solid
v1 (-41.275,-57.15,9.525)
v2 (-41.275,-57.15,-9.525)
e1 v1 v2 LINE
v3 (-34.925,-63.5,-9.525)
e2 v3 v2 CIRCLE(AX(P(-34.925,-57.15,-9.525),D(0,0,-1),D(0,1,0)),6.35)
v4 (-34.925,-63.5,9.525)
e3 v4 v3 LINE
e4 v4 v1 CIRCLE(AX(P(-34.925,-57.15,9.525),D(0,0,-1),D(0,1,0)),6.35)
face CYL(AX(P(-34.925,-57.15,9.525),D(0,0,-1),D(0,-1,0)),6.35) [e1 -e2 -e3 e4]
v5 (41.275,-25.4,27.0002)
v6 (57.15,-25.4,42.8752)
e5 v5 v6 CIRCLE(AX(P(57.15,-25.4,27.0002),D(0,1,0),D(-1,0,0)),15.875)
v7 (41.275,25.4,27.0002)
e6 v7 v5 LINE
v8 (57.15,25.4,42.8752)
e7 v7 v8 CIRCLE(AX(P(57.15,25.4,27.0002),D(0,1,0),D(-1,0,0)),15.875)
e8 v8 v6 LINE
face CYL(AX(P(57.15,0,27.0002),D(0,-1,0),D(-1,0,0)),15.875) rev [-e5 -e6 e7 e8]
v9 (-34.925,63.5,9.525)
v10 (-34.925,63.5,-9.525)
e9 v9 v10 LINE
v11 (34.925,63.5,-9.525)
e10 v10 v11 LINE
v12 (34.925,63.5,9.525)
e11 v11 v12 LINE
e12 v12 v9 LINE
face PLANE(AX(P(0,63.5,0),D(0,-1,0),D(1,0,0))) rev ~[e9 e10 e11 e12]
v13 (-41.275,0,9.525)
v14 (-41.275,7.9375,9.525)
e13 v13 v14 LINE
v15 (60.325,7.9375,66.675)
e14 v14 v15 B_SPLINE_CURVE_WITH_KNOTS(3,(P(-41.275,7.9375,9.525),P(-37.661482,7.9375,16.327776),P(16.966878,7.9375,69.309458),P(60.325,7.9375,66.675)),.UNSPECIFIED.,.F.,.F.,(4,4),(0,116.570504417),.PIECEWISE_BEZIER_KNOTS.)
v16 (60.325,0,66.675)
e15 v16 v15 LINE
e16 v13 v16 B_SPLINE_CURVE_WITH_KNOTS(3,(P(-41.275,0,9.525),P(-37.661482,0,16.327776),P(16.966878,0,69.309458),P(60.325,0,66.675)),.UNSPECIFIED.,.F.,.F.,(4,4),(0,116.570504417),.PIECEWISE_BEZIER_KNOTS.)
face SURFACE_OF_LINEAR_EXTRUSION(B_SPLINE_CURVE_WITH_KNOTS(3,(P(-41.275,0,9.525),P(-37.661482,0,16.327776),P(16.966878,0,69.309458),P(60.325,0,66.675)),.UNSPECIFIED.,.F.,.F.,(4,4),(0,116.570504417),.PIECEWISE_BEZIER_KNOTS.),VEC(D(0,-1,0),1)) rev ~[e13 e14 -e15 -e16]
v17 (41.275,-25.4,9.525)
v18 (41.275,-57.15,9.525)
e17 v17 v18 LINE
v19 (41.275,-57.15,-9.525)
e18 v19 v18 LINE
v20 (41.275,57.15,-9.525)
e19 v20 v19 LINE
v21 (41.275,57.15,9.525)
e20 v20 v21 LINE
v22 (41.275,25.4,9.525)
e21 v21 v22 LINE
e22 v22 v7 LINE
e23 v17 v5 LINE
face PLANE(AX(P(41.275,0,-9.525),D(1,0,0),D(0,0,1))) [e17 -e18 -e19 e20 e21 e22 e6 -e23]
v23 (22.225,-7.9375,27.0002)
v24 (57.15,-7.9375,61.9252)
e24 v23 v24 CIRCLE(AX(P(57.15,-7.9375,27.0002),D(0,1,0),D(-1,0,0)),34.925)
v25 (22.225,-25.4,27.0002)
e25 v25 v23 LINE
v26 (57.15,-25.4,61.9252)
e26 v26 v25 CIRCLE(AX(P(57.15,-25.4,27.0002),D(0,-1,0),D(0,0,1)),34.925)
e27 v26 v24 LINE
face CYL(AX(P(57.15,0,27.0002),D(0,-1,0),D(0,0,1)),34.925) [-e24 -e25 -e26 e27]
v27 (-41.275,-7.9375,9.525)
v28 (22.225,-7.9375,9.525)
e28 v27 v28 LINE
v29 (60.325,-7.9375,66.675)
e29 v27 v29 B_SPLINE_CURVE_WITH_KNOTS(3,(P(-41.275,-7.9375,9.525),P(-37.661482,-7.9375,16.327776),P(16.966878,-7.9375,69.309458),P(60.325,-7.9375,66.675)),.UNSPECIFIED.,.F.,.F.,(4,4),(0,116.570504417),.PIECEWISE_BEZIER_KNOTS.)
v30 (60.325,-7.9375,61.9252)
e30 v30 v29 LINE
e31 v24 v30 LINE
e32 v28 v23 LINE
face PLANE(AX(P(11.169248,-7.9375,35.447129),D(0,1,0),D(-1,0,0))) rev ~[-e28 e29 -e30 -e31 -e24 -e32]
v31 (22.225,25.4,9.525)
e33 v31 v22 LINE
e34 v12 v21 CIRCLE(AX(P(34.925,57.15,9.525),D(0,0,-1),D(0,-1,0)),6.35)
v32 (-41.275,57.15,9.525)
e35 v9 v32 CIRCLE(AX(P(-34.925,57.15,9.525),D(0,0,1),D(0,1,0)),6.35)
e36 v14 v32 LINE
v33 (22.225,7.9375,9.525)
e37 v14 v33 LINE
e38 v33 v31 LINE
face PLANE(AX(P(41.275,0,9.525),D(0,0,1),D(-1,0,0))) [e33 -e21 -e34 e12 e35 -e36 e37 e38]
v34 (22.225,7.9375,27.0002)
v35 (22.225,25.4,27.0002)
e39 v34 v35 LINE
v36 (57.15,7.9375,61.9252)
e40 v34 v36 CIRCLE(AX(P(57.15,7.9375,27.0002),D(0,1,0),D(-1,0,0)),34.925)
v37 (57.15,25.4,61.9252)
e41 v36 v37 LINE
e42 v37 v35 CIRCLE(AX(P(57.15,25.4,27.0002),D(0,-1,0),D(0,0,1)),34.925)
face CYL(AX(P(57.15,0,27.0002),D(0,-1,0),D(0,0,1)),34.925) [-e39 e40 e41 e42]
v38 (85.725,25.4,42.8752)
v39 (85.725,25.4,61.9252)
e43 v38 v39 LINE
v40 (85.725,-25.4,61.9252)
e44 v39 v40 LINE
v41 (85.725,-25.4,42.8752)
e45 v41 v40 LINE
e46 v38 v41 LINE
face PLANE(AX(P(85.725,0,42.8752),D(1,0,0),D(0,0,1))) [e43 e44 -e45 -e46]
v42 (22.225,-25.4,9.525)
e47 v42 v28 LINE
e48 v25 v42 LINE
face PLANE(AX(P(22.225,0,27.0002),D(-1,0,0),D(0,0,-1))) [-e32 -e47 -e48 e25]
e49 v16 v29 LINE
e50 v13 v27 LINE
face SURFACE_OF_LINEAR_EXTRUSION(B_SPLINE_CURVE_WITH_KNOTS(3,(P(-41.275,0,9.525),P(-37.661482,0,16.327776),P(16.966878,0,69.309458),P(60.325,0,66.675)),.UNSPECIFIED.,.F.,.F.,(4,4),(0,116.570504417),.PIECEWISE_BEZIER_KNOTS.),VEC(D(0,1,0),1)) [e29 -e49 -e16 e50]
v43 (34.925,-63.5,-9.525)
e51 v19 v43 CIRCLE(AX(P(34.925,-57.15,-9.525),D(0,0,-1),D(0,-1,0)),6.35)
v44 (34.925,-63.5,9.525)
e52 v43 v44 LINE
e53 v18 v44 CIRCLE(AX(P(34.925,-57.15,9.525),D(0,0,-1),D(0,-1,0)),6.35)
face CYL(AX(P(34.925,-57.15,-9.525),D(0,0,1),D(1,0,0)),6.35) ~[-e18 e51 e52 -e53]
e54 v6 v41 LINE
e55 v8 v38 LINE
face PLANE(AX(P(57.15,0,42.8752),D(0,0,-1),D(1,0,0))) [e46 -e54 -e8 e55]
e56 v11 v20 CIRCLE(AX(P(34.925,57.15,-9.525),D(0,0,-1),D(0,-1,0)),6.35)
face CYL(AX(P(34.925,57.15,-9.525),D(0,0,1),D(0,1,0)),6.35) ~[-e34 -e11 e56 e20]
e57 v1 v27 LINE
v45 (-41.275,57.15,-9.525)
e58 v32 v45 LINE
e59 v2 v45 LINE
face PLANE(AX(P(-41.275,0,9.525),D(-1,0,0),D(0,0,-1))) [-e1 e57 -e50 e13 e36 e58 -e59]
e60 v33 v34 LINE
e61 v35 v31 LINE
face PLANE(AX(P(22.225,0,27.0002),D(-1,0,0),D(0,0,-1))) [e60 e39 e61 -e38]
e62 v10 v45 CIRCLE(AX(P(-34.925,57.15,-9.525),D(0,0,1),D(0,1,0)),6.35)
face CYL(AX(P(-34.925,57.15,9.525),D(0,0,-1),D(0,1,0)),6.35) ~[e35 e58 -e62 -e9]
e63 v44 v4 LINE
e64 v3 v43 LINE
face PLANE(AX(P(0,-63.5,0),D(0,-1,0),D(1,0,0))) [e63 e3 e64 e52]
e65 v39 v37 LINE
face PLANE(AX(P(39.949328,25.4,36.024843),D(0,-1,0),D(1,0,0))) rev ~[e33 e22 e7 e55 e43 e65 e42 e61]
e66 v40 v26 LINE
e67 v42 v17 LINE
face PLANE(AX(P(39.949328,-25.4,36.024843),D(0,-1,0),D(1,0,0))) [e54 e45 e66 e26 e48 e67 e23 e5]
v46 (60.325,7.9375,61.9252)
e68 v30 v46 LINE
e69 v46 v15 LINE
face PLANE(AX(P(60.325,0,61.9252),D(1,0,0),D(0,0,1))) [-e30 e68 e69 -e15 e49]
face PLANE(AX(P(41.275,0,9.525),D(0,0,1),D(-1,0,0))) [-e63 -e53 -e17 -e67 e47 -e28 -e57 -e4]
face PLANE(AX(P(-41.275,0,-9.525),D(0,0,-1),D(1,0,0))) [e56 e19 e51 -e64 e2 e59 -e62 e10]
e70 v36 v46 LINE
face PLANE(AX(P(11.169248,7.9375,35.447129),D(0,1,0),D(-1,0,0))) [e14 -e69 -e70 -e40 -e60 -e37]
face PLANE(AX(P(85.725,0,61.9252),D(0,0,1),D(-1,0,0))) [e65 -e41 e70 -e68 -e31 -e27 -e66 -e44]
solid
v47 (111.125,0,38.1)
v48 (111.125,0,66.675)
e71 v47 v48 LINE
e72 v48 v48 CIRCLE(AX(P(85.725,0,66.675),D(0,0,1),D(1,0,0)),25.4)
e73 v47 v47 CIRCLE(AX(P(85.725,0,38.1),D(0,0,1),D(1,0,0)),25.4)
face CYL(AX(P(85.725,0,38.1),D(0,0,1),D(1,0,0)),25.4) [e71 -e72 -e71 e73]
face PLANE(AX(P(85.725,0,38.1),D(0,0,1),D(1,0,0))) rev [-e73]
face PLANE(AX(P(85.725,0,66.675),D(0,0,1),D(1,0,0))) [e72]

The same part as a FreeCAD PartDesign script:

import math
import FreeCAD as App
import Part
import Sketcher
from FreeCAD import Vector
Q = App.Units.Quantity


def edges_at(feature, points):
    """Names of the edges that pass closest to the given points."""
    edges = feature.Shape.Edges
    near = lambda p: min(range(len(edges)), key=lambda i: edges[i].distToShape(Part.Vertex(*p))[0])
    return sorted({f"Edge{near(p) + 1}" for p in points})


def add_polygon(sketch, points):
    """Adds a closed chain of lines whose ends are joined by coincident constraints."""
    first, n = sketch.GeometryCount, len(points)
    for a, b in zip(points, points[1:] + points[:1]):
        sketch.addGeometry(Part.LineSegment(App.Vector(*a, 0), App.Vector(*b, 0)), False)
    for i in range(n):
        sketch.addConstraint(Sketcher.Constraint("Coincident", first + i, 2, first + (i + 1) % n, 1))

doc = App.newDocument("Part")
params = doc.addObject("Spreadsheet::Sheet", "Params")
for row, (alias, value) in enumerate([
    ("sketch1_width", "3.25 in"),
    ("sketch1_height", "0.75 in"),
    ("pad1_length", "5 in"),
    ("sketch2_radius", "0.625 in"),
    ("sketch2_radius2", "1.375 in"),
    ("sketch2_width", "1.125 in"),
    ("sketch2_height", "0.688 in"),
    ("pad2_length", "2 in"),
    ("sketch3_width", "2.5 in"),
    ("sketch3_radius", "1.375 in"),
    ("sketch3_height", "0.688 in"),
    ("pad3_length", "0.625 in"),
    ("fillet_radius", "0.25 in"),
    ("sketch4_width", "1 in"),
    ("sketch4_height", "1.125 in"),
    ("revolution_angle", "360 deg"),
], start=1):
    params.set(f"A{row}", alias)
    params.set(f"B{row}", "=" + value)
    params.setAlias(f"B{row}", alias)

body = doc.addObject("PartDesign::Body", "Body")

# Sketch on XZ plane
sketch1 = body.newObject("Sketcher::SketchObject", "Sketch")
sketch1.AttachmentSupport = (doc.getObject("XZ_Plane"), [""])
sketch1.MapMode = "FlatFace"
add_polygon(sketch1, [(-41, -10), (41, -10), (41, 10), (-41, 10)])  # lines 0-3
sketch1.addConstraint([
    Sketcher.Constraint("Horizontal", 0),
    Sketcher.Constraint("Vertical", 1),
    Sketcher.Constraint("Horizontal", 2),
    Sketcher.Constraint("Vertical", 3),
    Sketcher.Constraint("Symmetric", 0, 2, 2, 2, -1, 1),
    Sketcher.Constraint("DistanceX", 0, 1, 0, 2, Q("3.25 in")),
    Sketcher.Constraint("DistanceY", 1, 1, 1, 2, Q("0.75 in")),
])
sketch1.setExpression("Constraints[9]", "Params.sketch1_width")
sketch1.setExpression("Constraints[10]", "Params.sketch1_height")
pad1 = body.newObject("PartDesign::Pad", "Pad")
pad1.Profile = sketch1
pad1.setExpression("Length", "Params.pad1_length")
pad1.Midplane = True

# Sketch on XZ plane
sketch2 = body.newObject("Sketcher::SketchObject", "Sketch001")
sketch2.AttachmentSupport = (doc.getObject("XZ_Plane"), [""])
sketch2.MapMode = "FlatFace"
sketch2.addGeometry([
    Part.LineSegment(Vector(22, 10, 0), Vector(41, 10, 0)),  # 0
    Part.LineSegment(Vector(41, 10, 0), Vector(41, 27, 0)),  # 1
    Part.ArcOfCircle(Part.Circle(Vector(57, 27, 0), Vector(0, 0, 1), 16), math.radians(90), math.radians(180)),  # 2
    Part.LineSegment(Vector(57, 43, 0), Vector(86, 43, 0)),  # 3
    Part.LineSegment(Vector(86, 43, 0), Vector(86, 62, 0)),  # 4
    Part.LineSegment(Vector(86, 62, 0), Vector(57, 62, 0)),  # 5
    Part.ArcOfCircle(Part.Circle(Vector(57, 27, 0), Vector(0, 0, 1), 35), math.radians(90), math.radians(180)),  # 6
    Part.LineSegment(Vector(22, 27, 0), Vector(22, 10, 0)),  # 7
], False)
sketch2.addConstraint([
    Sketcher.Constraint("Coincident", 0, 2, 1, 1),
    Sketcher.Constraint("Tangent", 1, 2, 2, 2),
    Sketcher.Constraint("Tangent", 2, 1, 3, 1),
    Sketcher.Constraint("Coincident", 3, 2, 4, 1),
    Sketcher.Constraint("Coincident", 4, 2, 5, 1),
    Sketcher.Constraint("Tangent", 5, 2, 6, 1),
    Sketcher.Constraint("Tangent", 6, 2, 7, 1),
    Sketcher.Constraint("Coincident", 7, 2, 0, 1),
    Sketcher.Constraint("Horizontal", 0),
    Sketcher.Constraint("Vertical", 1),
    Sketcher.Constraint("Horizontal", 3),
    Sketcher.Constraint("Vertical", 4),
    Sketcher.Constraint("Horizontal", 5),
    Sketcher.Constraint("Vertical", 7),
    Sketcher.Constraint("Coincident", 6, 3, 2, 3),
    Sketcher.Constraint("Radius", 2, Q("0.625 in")),
    Sketcher.Constraint("Radius", 6, Q("1.375 in")),
    Sketcher.Constraint("DistanceX", 3, 1, 3, 2, Q("1.125 in")),
    Sketcher.Constraint("DistanceY", 1, 1, 1, 2, Q("0.688 in")),
    Sketcher.Constraint("DistanceX", -1, 1, 2, 3, Q("2.25 in")),
    Sketcher.Constraint("DistanceY", -1, 1, 2, 3, Q("1.063 in")),
])
sketch2.setExpression("Constraints[15]", "Params.sketch2_radius")
sketch2.setExpression("Constraints[16]", "Params.sketch2_radius2")
sketch2.setExpression("Constraints[17]", "Params.sketch2_width")
sketch2.setExpression("Constraints[18]", "Params.sketch2_height")
pad2 = body.newObject("PartDesign::Pad", "Pad001")
pad2.Profile = sketch2
pad2.setExpression("Length", "Params.pad2_length")
pad2.Midplane = True

# Sketch on XZ plane
sketch3 = body.newObject("Sketcher::SketchObject", "Sketch002")
sketch3.AttachmentSupport = (doc.getObject("XZ_Plane"), [""])
sketch3.MapMode = "FlatFace"
sketch3.addGeometry([
    Part.BSplineCurve([Vector(-41.275, 9.525, 0), Vector(-37.661482, 16.327776, 0), Vector(16.966878, 69.309458, 0), Vector(60.325, 66.675, 0)], [4, 4], [0, 116.570504417], False, 3, [1, 1, 1, 1], False),  # 0
    Part.LineSegment(Vector(-41.275, 9.525, 0), Vector(22.225, 9.525, 0)),  # 1
    Part.LineSegment(Vector(22.225, 9.525, 0), Vector(22.225, 27.0002, 0)),  # 2
    Part.ArcOfCircle(Part.Circle(Vector(57.15, 27.0002, 0), Vector(0, 0, 1), 34.925), math.radians(90), math.radians(180)),  # 3
    Part.LineSegment(Vector(57.15, 61.9252, 0), Vector(60.325, 61.9252, 0)),  # 4
    Part.LineSegment(Vector(60.325, 61.9252, 0), Vector(60.325, 66.675, 0)),  # 5
], False)
sketch3.addConstraint([
    Sketcher.Constraint("Block", 0),
    Sketcher.Constraint("Coincident", 0, 1, 1, 1),
    Sketcher.Constraint("Coincident", 1, 2, 2, 1),
    Sketcher.Constraint("Tangent", 2, 2, 3, 2),
    Sketcher.Constraint("Tangent", 3, 1, 4, 1),
    Sketcher.Constraint("Coincident", 4, 2, 5, 1),
    Sketcher.Constraint("Coincident", 5, 2, 0, 2),
    Sketcher.Constraint("Horizontal", 1),
    Sketcher.Constraint("Vertical", 2),
    Sketcher.Constraint("Horizontal", 4),
    Sketcher.Constraint("Vertical", 5),
    Sketcher.Constraint("DistanceX", 1, 1, 1, 2, Q("2.5 in")),
    Sketcher.Constraint("Radius", 3, Q("1.375 in")),
    Sketcher.Constraint("DistanceY", 2, 1, 2, 2, Q("0.688 in")),
])
sketch3.setExpression("Constraints[11]", "Params.sketch3_width")
sketch3.setExpression("Constraints[12]", "Params.sketch3_radius")
sketch3.setExpression("Constraints[13]", "Params.sketch3_height")
pad3 = body.newObject("PartDesign::Pad", "Pad002")
pad3.Profile = sketch3
pad3.setExpression("Length", "Params.pad3_length")
pad3.Midplane = True
doc.recompute()

fillet = body.newObject("PartDesign::Fillet", "Fillet")
fillet.Base = (pad3, edges_at(pad3, [
    (-41.275, -63.5, 0),
    (41.275, -63.5, 0),
    (-41.275, 63.5, 0),
    (41.275, 63.5, 0),
]))
fillet.setExpression("Radius", "Params.fillet_radius")
body2 = doc.addObject("PartDesign::Body", "Body001")

# Sketch on XZ plane
sketch4 = body2.newObject("Sketcher::SketchObject", "Sketch003")
sketch4.AttachmentSupport = (doc.getObject("XZ_Plane001"), [""])
sketch4.MapMode = "FlatFace"
add_polygon(sketch4, [(86, 67), (86, 38), (111, 38), (111, 67)])  # lines 0-3
sketch4.addGeometry(Part.LineSegment(Vector(86, 38, 0), Vector(86, 67, 0)), True)  # axis
sketch4.addConstraint([
    Sketcher.Constraint("Vertical", 0),
    Sketcher.Constraint("Horizontal", 1),
    Sketcher.Constraint("Vertical", 2),
    Sketcher.Constraint("Horizontal", 3),
    Sketcher.Constraint("Vertical", 4),
    Sketcher.Constraint("Coincident", 4, 1, 0, 2),
    Sketcher.Constraint("Horizontal", 2, 2, 4, 2),
    Sketcher.Constraint("DistanceX", 1, 1, 1, 2, Q("1 in")),
    Sketcher.Constraint("DistanceY", -1, 1, 0, 2, Q("1.5 in")),
    Sketcher.Constraint("DistanceY", 0, 2, 0, 1, Q("1.125 in")),
    Sketcher.Constraint("DistanceX", -1, 1, 0, 2, Q("3.375 in")),
])
sketch4.setExpression("Constraints[11]", "Params.sketch4_width")
sketch4.setExpression("Constraints[13]", "Params.sketch4_height")
revolution = body2.newObject("PartDesign::Revolution", "Revolution")
revolution.Profile = sketch4
revolution.ReferenceAxis = (sketch4, ["Axis0"])
revolution.setExpression("Angle", "Params.revolution_angle")

doc.recompute()
